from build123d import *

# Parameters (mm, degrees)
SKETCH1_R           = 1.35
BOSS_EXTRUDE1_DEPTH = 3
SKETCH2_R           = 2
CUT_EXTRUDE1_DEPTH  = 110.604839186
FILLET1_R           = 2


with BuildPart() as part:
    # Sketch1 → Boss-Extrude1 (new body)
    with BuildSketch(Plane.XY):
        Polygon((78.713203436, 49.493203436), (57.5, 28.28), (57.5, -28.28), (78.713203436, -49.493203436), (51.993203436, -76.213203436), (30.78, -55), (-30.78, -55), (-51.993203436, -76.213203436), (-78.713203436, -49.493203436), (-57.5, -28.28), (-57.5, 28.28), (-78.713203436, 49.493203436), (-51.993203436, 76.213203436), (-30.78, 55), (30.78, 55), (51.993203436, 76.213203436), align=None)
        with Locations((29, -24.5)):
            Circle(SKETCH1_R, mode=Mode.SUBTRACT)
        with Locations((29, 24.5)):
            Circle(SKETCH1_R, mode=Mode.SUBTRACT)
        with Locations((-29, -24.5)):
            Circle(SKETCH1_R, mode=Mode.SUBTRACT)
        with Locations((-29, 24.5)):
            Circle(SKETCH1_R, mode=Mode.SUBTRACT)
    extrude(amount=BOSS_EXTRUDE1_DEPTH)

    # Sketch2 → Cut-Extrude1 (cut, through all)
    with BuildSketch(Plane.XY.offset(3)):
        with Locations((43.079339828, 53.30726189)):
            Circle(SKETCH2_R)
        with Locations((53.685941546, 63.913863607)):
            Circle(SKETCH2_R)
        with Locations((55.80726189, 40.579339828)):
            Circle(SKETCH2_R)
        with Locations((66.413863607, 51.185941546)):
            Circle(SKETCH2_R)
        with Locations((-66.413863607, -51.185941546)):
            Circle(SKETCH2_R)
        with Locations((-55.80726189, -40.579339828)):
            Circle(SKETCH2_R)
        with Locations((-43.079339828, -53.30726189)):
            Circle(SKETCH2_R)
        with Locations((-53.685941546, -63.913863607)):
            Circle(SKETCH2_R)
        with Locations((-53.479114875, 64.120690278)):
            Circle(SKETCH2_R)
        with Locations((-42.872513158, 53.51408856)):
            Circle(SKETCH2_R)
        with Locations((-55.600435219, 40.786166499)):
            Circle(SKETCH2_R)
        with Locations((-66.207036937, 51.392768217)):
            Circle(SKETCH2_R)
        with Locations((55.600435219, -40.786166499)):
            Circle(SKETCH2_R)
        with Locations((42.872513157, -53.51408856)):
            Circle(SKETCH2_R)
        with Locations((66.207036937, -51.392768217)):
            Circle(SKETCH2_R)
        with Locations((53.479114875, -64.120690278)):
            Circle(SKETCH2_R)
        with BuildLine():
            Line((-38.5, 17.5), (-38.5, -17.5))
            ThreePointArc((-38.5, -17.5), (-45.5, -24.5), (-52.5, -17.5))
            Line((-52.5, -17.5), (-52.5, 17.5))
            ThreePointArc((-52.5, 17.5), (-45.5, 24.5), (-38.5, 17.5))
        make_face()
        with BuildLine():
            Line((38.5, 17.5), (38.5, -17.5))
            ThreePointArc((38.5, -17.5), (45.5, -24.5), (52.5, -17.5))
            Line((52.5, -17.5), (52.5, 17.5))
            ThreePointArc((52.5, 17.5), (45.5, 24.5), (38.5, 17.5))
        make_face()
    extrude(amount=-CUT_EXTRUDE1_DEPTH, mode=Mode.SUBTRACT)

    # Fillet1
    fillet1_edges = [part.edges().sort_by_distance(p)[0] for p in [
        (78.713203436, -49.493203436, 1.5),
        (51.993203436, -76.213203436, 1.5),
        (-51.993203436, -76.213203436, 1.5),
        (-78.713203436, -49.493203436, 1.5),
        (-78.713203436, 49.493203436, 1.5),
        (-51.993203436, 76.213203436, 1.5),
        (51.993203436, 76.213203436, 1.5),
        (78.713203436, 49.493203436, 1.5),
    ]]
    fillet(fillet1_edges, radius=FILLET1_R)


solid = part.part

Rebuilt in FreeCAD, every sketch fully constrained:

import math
import FreeCAD as App
import Part
import Sketcher
Q = App.Units.Quantity


def edges_at(feature, points):
    """Names of the edges that pass closest to the given points."""
    edges = feature.Shape.Edges
    near = lambda p: min(range(len(edges)), key=lambda i: edges[i].distToShape(Part.Vertex(*p))[0])
    return sorted({f"Edge{near(p) + 1}" for p in points})


def add_polygon(sketch, points):
    """Adds a closed chain of lines whose ends are joined by coincident constraints."""
    first, n = sketch.GeometryCount, len(points)
    for a, b in zip(points, points[1:] + points[:1]):
        sketch.addGeometry(Part.LineSegment(App.Vector(*a, 0), App.Vector(*b, 0)), False)
    for i in range(n):
        sketch.addConstraint(Sketcher.Constraint("Coincident", first + i, 2, first + (i + 1) % n, 1))

doc = App.newDocument("Part")
body = doc.addObject("PartDesign::Body", "Body")

sketch1 = doc.addObject("Sketcher::SketchObject", "Sketch")
body.addObject(sketch1)
sketch1.AttachmentSupport = (doc.XY_Plane, [""])
sketch1.MapMode = "FlatFace"
add_polygon(sketch1, [(57.5, 28.3), (78.7, 49.5), (52, 76.2), (30.8, 55), (-30.8, 55), (-52, 76.2), (-78.7, 49.5), (-57.5, 28.3), (-57.5, -28.3), (-78.7, -49.5), (-52, -76.2), (-30.8, -55), (30.8, -55), (52, -76.2), (78.7, -49.5), (57.5, -28.3)])
sketch1.addGeometry(Part.Circle(App.Vector(29, -24.5, 0), App.Vector(0, 0, 1), 1.4), False)
sketch1.addGeometry(Part.Circle(App.Vector(-29, -24.5, 0), App.Vector(0, 0, 1), 1.4), False)
sketch1.addGeometry(Part.Circle(App.Vector(29, 24.5, 0), App.Vector(0, 0, 1), 1.4), False)
sketch1.addGeometry(Part.Circle(App.Vector(-29, 24.5, 0), App.Vector(0, 0, 1), 1.4), False)
sketch1.addConstraint(Sketcher.Constraint("Horizontal", 3))
sketch1.addConstraint(Sketcher.Constraint("Vertical", 7))
sketch1.addConstraint(Sketcher.Constraint("Horizontal", 11))
sketch1.addConstraint(Sketcher.Constraint("Vertical", 15))
sketch1.addConstraint(Sketcher.Constraint("Equal", 16, 17))
sketch1.addConstraint(Sketcher.Constraint("Equal", 17, 18))
sketch1.addConstraint(Sketcher.Constraint("Equal", 18, 19))
sketch1.addConstraint(Sketcher.Constraint("Symmetric", 17, 3, 18, 3, -1, 1))
sketch1.addConstraint(Sketcher.Constraint("Symmetric", 16, 3, 19, 3, -1, 1))
sketch1.addConstraint(Sketcher.Constraint("Symmetric", 0, 2, 8, 2, -1, 1))
sketch1.addConstraint(Sketcher.Constraint("Symmetric", 1, 2, 9, 2, -1, 1))
sketch1.addConstraint(Sketcher.Constraint("Symmetric", 2, 2, 10, 2, -1, 1))
sketch1.addConstraint(Sketcher.Constraint("Symmetric", 4, 2, 12, 2, -1, 1))
sketch1.addConstraint(Sketcher.Constraint("Symmetric", 5, 2, 13, 2, -1, 1))
sketch1.addConstraint(Sketcher.Constraint("Symmetric", 6, 2, 14, 2, -1, 1))
sketch1.addConstraint(Sketcher.Constraint("Symmetric", 16, 3, 17, 3, -2))
sketch1.addConstraint(Sketcher.Constraint("Symmetric", 1, 2, 4, 2, -2))
sketch1.addConstraint(Sketcher.Constraint("Symmetric", 0, 2, 5, 2, -2))
sketch1.addConstraint(Sketcher.Constraint("Perpendicular", 0, 1))
sketch1.addConstraint(Sketcher.Constraint("Perpendicular", 1, 2))
sketch1.addConstraint(Sketcher.Constraint("Perpendicular", 2, 4))
sketch1.addConstraint(Sketcher.Constraint("Perpendicular", 4, 5))
sketch1.addConstraint(Sketcher.Constraint("Perpendicular", 5, 6))
sketch1.addConstraint(Sketcher.Constraint("Perpendicular", 6, 8))
sketch1.addConstraint(Sketcher.Constraint("Perpendicular", 10, 12))
sketch1.addConstraint(Sketcher.Constraint("Equal", 0, 2))
sketch1.addConstraint(Sketcher.Constraint("Diameter", 16, Q("2.7 mm")))
sketch1.addConstraint(Sketcher.Constraint("Distance", 0, Q("30 mm")))
sketch1.addConstraint(Sketcher.Constraint("DistanceX", -1, 1, 16, 3, Q("29 mm")))
sketch1.addConstraint(Sketcher.Constraint("DistanceY", -1, 1, 2, 2, Q("55 mm")))
sketch1.addConstraint(Sketcher.Constraint("DistanceY", 16, 3, 18, 3, Q("49 mm")))
sketch1.addConstraint(Sketcher.Constraint("DistanceX", 3, 2, 3, 1, Q("61.56 mm")))
sketch1.addConstraint(Sketcher.Constraint("DistanceY", 7, 2, 7, 1, Q("56.56 mm")))
pad1 = doc.addObject("PartDesign::Pad", "Pad")
body.addObject(pad1)
pad1.Profile = sketch1
pad1.Length = 3

sketch2 = doc.addObject("Sketcher::SketchObject", "Sketch001")
body.addObject(sketch2)
sketch2.AttachmentSupport = (doc.XY_Plane, [""])
sketch2.MapMode = "FlatFace"
sketch2.AttachmentOffset = App.Placement(App.Vector(0, 0, 3), App.Rotation())
sketch2.addGeometry(Part.Circle(App.Vector(43.1, 53.3, 0), App.Vector(0, 0, 1), 2), False)
sketch2.addGeometry(Part.Circle(App.Vector(53.7, 63.9, 0), App.Vector(0, 0, 1), 2), False)
sketch2.addGeometry(Part.Circle(App.Vector(55.8, 40.6, 0), App.Vector(0, 0, 1), 2), False)
sketch2.addGeometry(Part.Circle(App.Vector(66.4, 51.2, 0), App.Vector(0, 0, 1), 2), False)
sketch2.addGeometry(Part.Circle(App.Vector(-66.4, -51.2, 0), App.Vector(0, 0, 1), 2), False)
sketch2.addGeometry(Part.Circle(App.Vector(-55.8, -40.6, 0), App.Vector(0, 0, 1), 2), False)
sketch2.addGeometry(Part.Circle(App.Vector(-43.1, -53.3, 0), App.Vector(0, 0, 1), 2), False)
sketch2.addGeometry(Part.Circle(App.Vector(-53.7, -63.9, 0), App.Vector(0, 0, 1), 2), False)
sketch2.addGeometry(Part.Circle(App.Vector(-53.5, 64.1, 0), App.Vector(0, 0, 1), 2), False)
sketch2.addGeometry(Part.Circle(App.Vector(-42.9, 53.5, 0), App.Vector(0, 0, 1), 2), False)
sketch2.addGeometry(Part.Circle(App.Vector(-55.6, 40.8, 0), App.Vector(0, 0, 1), 2), False)
sketch2.addGeometry(Part.Circle(App.Vector(-66.2, 51.4, 0), App.Vector(0, 0, 1), 2), False)
sketch2.addGeometry(Part.Circle(App.Vector(55.6, -40.8, 0), App.Vector(0, 0, 1), 2), False)
sketch2.addGeometry(Part.Circle(App.Vector(42.9, -53.5, 0), App.Vector(0, 0, 1), 2), False)
sketch2.addGeometry(Part.Circle(App.Vector(66.2, -51.4, 0), App.Vector(0, 0, 1), 2), False)
sketch2.addGeometry(Part.Circle(App.Vector(53.5, -64.1, 0), App.Vector(0, 0, 1), 2), False)
sketch2.addGeometry(Part.LineSegment(App.Vector(-38.5, -17.5, 0), App.Vector(-38.5, 17.5, 0)), False)
sketch2.addGeometry(Part.ArcOfCircle(Part.Circle(App.Vector(-45.5, 17.5, 0), App.Vector(0, 0, 1), 7), math.radians(0), math.radians(180)), False)
sketch2.addGeometry(Part.LineSegment(App.Vector(-52.5, 17.5, 0), App.Vector(-52.5, -17.5, 0)), False)
sketch2.addGeometry(Part.ArcOfCircle(Part.Circle(App.Vector(-45.5, -17.5, 0), App.Vector(0, 0, 1), 7), math.radians(180), math.radians(360)), False)
sketch2.addGeometry(Part.LineSegment(App.Vector(38.5, 17.5, 0), App.Vector(38.5, -17.5, 0)), False)
sketch2.addGeometry(Part.ArcOfCircle(Part.Circle(App.Vector(45.5, -17.5, 0), App.Vector(0, 0, 1), 7), math.radians(180), math.radians(360)), False)
sketch2.addGeometry(Part.LineSegment(App.Vector(52.5, -17.5, 0), App.Vector(52.5, 17.5, 0)), False)
sketch2.addGeometry(Part.ArcOfCircle(Part.Circle(App.Vector(45.5, 17.5, 0), App.Vector(0, 0, 1), 7), math.radians(0), math.radians(180)), False)
sketch2.addConstraint(Sketcher.Constraint("Tangent", 16, 2, 17, 1))
sketch2.addConstraint(Sketcher.Constraint("Tangent", 17, 2, 18, 1))
sketch2.addConstraint(Sketcher.Constraint("Tangent", 18, 2, 19, 1))
sketch2.addConstraint(Sketcher.Constraint("Tangent", 19, 2, 16, 1))
sketch2.addConstraint(Sketcher.Constraint("Tangent", 20, 2, 21, 1))
sketch2.addConstraint(Sketcher.Constraint("Tangent", 21, 2, 22, 1))
sketch2.addConstraint(Sketcher.Constraint("Tangent", 22, 2, 23, 1))
sketch2.addConstraint(Sketcher.Constraint("Tangent", 23, 2, 20, 1))
sketch2.addConstraint(Sketcher.Constraint("Vertical", 16))
sketch2.addConstraint(Sketcher.Constraint("Vertical", 18))
sketch2.addConstraint(Sketcher.Constraint("Vertical", 20))
sketch2.addConstraint(Sketcher.Constraint("Vertical", 22))
sketch2.addConstraint(Sketcher.Constraint("Equal", 0, 1))
sketch2.addConstraint(Sketcher.Constraint("Equal", 1, 2))
sketch2.addConstraint(Sketcher.Constraint("Equal", 2, 3))
sketch2.addConstraint(Sketcher.Constraint("Equal", 3, 4))
sketch2.addConstraint(Sketcher.Constraint("Equal", 4, 5))
sketch2.addConstraint(Sketcher.Constraint("Equal", 5, 6))
sketch2.addConstraint(Sketcher.Constraint("Equal", 6, 7))
sketch2.addConstraint(Sketcher.Constraint("Equal", 7, 8))
sketch2.addConstraint(Sketcher.Constraint("Equal", 8, 9))
sketch2.addConstraint(Sketcher.Constraint("Equal", 9, 10))
sketch2.addConstraint(Sketcher.Constraint("Equal", 10, 11))
sketch2.addConstraint(Sketcher.Constraint("Equal", 11, 12))
sketch2.addConstraint(Sketcher.Constraint("Equal", 12, 13))
sketch2.addConstraint(Sketcher.Constraint("Equal", 13, 14))
sketch2.addConstraint(Sketcher.Constraint("Equal", 14, 15))
sketch2.addConstraint(Sketcher.Constraint("Equal", 19, 21))
sketch2.addConstraint(Sketcher.Constraint("Symmetric", 3, 3, 4, 3, -1, 1))
sketch2.addConstraint(Sketcher.Constraint("Symmetric", 2, 3, 5, 3, -1, 1))
sketch2.addConstraint(Sketcher.Constraint("Symmetric", 0, 3, 6, 3, -1, 1))
sketch2.addConstraint(Sketcher.Constraint("Symmetric", 1, 3, 7, 3, -1, 1))
sketch2.addConstraint(Sketcher.Constraint("Symmetric", 10, 3, 12, 3, -1, 1))
sketch2.addConstraint(Sketcher.Constraint("Symmetric", 9, 3, 13, 3, -1, 1))
sketch2.addConstraint(Sketcher.Constraint("Symmetric", 11, 3, 14, 3, -1, 1))
sketch2.addConstraint(Sketcher.Constraint("Symmetric", 8, 3, 15, 3, -1, 1))
sketch2.addConstraint(Sketcher.Constraint("Symmetric", 17, 3, 21, 3, -1, 1))
sketch2.addConstraint(Sketcher.Constraint("Horizontal", 19, 3, 21, 3))
sketch2.addConstraint(Sketcher.Constraint("Horizontal", 17, 3, 23, 3))
sketch2.addConstraint(Sketcher.Constraint("Diameter", 0, Q("4 mm")))
sketch2.addConstraint(Sketcher.Constraint("Radius", 17, Q("7 mm")))
sketch2.addConstraint(Sketcher.Constraint("DistanceY", 16, 1, 16, 2, Q("35 mm")))
sketch2.addConstraint(Sketcher.Constraint("DistanceX", 17, 3, -1, 1, Q("45.5 mm")))
sketch2.addConstraint(Sketcher.Constraint("DistanceX", 0, 3, 1, 3, Q("10.606602 mm")))
sketch2.addConstraint(Sketcher.Constraint("DistanceY", 0, 3, 1, 3, Q("10.606602 mm")))
sketch2.addConstraint(Sketcher.Constraint("DistanceX", 2, 3, 3, 3, Q("10.606602 mm")))
sketch2.addConstraint(Sketcher.Constraint("DistanceY", 2, 3, 3, 3, Q("10.606602 mm")))
sketch2.addConstraint(Sketcher.Constraint("DistanceX", 5, 3, 0, 3, Q("98.886602 mm")))
sketch2.addConstraint(Sketcher.Constraint("DistanceY", 5, 3, 0, 3, Q("93.886602 mm")))
sketch2.addConstraint(Sketcher.Constraint("DistanceX", 8, 3, 9, 3, Q("10.606602 mm")))
sketch2.addConstraint(Sketcher.Constraint("DistanceY", 9, 3, 8, 3, Q("10.606602 mm")))
sketch2.addConstraint(Sketcher.Constraint("DistanceX", 11, 3, 10, 3, Q("10.606602 mm")))
sketch2.addConstraint(Sketcher.Constraint("DistanceY", 10, 3, 11, 3, Q("10.606602 mm")))
sketch2.addConstraint(Sketcher.Constraint("DistanceX", -1, 1, 0, 3, Q("43.07934 mm")))
sketch2.addConstraint(Sketcher.Constraint("DistanceY", -1, 1, 0, 3, Q("53.307262 mm")))
sketch2.addConstraint(Sketcher.Constraint("DistanceY", -1, 1, 8, 3, Q("64.12069 mm")))
sketch2.addConstraint(Sketcher.Constraint("DistanceY", -1, 1, 11, 3, Q("51.392768 mm")))
sketch2.addConstraint(Sketcher.Constraint("DistanceX", 4, 3, 8, 3, Q("12.934749 mm")))
sketch2.addConstraint(Sketcher.Constraint("DistanceX", 10, 3, 8, 3, Q("2.12132 mm")))
pocket1 = doc.addObject("PartDesign::Pocket", "Pocket")
body.addObject(pocket1)
pocket1.Profile = sketch2
pocket1.Type = "ThroughAll"
doc.recompute()

fillet = doc.addObject("PartDesign::Fillet", "Fillet")
body.addObject(fillet)
fillet.Base = (pocket1, edges_at(pocket1, [
    (78.713, -49.493, 1.5),
    (51.993, -76.213, 1.5),
    (-51.993, -76.213, 1.5),
    (-78.713, -49.493, 1.5),
    (-78.713, 49.493, 1.5),
    (-51.993, 76.213, 1.5),
    (51.993, 76.213, 1.5),
    (78.713, 49.493, 1.5),
]))
fillet.Radius = 2

doc.recompute()
